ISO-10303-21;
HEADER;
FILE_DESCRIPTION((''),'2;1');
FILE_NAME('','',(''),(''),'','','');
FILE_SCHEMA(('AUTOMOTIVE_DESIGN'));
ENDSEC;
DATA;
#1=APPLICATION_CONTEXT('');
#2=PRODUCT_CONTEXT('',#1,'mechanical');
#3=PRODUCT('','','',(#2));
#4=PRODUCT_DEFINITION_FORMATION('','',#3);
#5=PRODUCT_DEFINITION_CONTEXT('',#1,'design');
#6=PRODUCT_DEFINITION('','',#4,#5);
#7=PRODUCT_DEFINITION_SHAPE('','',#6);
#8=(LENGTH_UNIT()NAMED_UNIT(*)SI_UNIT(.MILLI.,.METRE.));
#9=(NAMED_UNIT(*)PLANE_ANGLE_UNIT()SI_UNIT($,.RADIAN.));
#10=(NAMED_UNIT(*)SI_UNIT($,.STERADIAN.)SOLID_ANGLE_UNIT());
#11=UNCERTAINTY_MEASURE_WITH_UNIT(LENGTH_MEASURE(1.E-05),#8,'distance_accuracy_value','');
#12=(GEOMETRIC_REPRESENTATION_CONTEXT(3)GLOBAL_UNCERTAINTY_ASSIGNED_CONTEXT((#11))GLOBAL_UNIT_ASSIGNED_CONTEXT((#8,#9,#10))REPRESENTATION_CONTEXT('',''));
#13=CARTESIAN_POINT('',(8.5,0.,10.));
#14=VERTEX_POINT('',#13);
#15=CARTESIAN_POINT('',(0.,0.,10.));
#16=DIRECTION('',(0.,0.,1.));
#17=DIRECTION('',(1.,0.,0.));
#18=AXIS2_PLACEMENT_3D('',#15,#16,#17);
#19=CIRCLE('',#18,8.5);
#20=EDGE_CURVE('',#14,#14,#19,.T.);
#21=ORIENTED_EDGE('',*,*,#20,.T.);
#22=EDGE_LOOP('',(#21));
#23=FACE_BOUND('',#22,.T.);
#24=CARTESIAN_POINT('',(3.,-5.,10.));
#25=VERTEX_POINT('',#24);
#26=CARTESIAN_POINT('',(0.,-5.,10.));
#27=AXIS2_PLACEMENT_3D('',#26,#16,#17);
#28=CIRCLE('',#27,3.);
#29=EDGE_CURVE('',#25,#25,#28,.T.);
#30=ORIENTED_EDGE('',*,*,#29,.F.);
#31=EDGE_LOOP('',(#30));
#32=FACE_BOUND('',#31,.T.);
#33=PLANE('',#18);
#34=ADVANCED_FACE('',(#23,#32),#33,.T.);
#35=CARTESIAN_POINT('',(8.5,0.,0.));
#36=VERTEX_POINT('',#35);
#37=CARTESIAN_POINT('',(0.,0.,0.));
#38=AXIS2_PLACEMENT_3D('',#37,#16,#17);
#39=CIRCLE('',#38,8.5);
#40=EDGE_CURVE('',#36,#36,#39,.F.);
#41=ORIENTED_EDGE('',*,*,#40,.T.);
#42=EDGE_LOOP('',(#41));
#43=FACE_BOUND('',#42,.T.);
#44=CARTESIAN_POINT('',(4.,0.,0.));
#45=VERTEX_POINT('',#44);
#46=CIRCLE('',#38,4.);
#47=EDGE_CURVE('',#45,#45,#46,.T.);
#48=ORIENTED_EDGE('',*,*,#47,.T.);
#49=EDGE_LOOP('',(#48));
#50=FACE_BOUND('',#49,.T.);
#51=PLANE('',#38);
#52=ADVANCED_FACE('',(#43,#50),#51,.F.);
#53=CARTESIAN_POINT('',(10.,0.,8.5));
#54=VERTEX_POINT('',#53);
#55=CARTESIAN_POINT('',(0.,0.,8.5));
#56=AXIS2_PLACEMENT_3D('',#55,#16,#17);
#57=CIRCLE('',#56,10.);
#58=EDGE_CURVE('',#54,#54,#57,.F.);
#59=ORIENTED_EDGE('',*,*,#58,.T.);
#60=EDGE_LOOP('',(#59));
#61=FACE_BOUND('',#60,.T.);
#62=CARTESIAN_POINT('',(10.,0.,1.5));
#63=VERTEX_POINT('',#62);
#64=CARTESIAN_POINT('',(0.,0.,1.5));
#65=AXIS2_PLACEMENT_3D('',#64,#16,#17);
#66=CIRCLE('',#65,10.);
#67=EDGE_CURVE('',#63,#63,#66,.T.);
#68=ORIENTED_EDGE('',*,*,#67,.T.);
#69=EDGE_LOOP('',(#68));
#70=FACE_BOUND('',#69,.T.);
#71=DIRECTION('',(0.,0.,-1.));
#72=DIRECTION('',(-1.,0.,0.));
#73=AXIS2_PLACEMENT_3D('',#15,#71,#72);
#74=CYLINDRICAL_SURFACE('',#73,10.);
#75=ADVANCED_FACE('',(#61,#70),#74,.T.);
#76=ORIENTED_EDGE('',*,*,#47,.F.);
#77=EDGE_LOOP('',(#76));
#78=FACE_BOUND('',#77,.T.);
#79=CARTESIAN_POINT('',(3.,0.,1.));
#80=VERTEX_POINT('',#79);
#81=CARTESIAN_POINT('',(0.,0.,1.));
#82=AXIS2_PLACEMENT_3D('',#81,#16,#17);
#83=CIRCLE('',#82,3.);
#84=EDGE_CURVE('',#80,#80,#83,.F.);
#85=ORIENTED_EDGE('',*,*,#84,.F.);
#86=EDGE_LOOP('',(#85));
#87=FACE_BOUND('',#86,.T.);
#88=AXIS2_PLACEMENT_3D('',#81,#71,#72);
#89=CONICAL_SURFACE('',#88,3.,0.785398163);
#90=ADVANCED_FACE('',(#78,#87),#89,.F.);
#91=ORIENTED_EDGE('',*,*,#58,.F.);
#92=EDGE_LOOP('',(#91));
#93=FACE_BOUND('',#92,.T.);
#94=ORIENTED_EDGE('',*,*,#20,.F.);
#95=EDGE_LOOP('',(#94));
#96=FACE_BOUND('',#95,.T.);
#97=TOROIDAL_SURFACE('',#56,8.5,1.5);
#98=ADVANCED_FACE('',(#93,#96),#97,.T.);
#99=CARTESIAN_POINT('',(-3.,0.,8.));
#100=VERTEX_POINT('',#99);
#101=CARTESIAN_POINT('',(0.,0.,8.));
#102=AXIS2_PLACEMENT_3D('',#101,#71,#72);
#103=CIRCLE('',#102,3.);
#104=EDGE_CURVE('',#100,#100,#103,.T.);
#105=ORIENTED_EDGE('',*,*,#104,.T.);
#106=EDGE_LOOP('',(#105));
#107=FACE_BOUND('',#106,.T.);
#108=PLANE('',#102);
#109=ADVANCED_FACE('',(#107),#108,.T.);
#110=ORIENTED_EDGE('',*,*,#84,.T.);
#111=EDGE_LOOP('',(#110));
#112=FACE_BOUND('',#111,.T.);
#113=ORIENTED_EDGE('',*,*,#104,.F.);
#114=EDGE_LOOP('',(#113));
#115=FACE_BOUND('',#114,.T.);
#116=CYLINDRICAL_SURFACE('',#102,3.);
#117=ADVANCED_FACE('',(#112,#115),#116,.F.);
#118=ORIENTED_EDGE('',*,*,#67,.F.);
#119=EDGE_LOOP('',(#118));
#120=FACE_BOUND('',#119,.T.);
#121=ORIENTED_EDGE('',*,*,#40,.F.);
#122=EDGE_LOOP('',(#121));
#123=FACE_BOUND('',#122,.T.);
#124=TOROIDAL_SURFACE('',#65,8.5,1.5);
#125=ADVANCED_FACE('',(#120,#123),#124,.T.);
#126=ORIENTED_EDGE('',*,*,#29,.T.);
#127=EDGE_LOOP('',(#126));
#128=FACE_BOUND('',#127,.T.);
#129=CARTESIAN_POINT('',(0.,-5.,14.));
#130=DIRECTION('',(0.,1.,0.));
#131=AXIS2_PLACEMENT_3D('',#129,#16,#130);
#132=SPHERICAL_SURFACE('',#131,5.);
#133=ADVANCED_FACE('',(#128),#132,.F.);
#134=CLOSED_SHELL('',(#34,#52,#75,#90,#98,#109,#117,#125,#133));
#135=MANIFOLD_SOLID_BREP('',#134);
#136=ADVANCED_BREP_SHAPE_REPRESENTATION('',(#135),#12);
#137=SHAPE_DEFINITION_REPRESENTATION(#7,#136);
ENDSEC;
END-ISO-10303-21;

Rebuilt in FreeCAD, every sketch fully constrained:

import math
import FreeCAD as App
import Part
import Sketcher

V = App.Vector
Q = App.Units.Quantity


def edges_at(feature, points):
    """Names of the edges that pass closest to the given points."""
    edges = feature.Shape.Edges
    near = lambda p: min(range(len(edges)), key=lambda i: edges[i].distToShape(Part.Vertex(*p))[0])
    return sorted({f"Edge{near(p) + 1}" for p in points})

doc = App.newDocument("Part")
body = doc.addObject("PartDesign::Body", "Body")

sketch1 = body.newObject("Sketcher::SketchObject", "Sketch")
sketch1.AttachmentSupport = (doc.getObject("XY_Plane"), [""])
sketch1.MapMode = "FlatFace"
sketch1.addGeometry(Part.Circle(V(0, 0, 0), V(0, 0, 1), 10), False)
sketch1.addConstraint([
    Sketcher.Constraint("Coincident", 0, 3, -1, 1),
    Sketcher.Constraint("Diameter", 0, Q("20 mm")),
])
pad1 = body.newObject("PartDesign::Pad", "Pad")
pad1.Profile = sketch1
pad1.Length = 10
doc.recompute()

fillet = body.newObject("PartDesign::Fillet", "Fillet")
fillet.Base = (pad1, edges_at(pad1, [(-10, 0, 0), (-10, 0, 10)]))
fillet.Radius = 1.5

sketch2 = body.newObject("Sketcher::SketchObject", "Sketch001")
sketch2.AttachmentSupport = (doc.getObject("XY_Plane"), [""])
sketch2.MapMode = "FlatFace"
sketch2.addGeometry(Part.Circle(V(0, 0, 0), V(0, 0, 1), 3), False)
sketch2.addConstraint([
    Sketcher.Constraint("Coincident", 0, 3, -1, 1),
    Sketcher.Constraint("Diameter", 0, Q("6 mm")),
])
pocket1 = body.newObject("PartDesign::Pocket", "Pocket")
pocket1.Profile = sketch2
pocket1.Length = 8
pocket1.Reversed = True
doc.recompute()

chamfer = body.newObject("PartDesign::Chamfer", "Chamfer")
chamfer.Base = (pocket1, edges_at(pocket1, [(3, 0, 0)]))
chamfer.Size = 1

sketch3 = body.newObject("Sketcher::SketchObject", "Sketch002")
sketch3.AttachmentSupport = (doc.getObject("YZ_Plane"), [""])
sketch3.MapMode = "FlatFace"
sketch3.addGeometry([
    Part.LineSegment(V(-5, 9, 0), V(-5, 19, 0)),
    Part.ArcOfCircle(Part.Circle(V(-5, 14, 0), V(0, 0, 1), 5), math.radians(90), math.radians(270)),
], False)
sketch3.addGeometry(Part.LineSegment(V(-5, 19, 0), V(-5, 9, 0)), True)
sketch3.addConstraint([
    Sketcher.Constraint("Coincident", 0, 1, 1, 2),
    Sketcher.Constraint("Coincident", 1, 1, 0, 2),
    Sketcher.Constraint("Vertical", 0),
    Sketcher.Constraint("Vertical", 2),
    Sketcher.Constraint("Coincident", 2, 1, 1, 1),
    Sketcher.Constraint("Vertical", 1, 3, 0, 1),
    Sketcher.Constraint("Equal", 0, 2),
    Sketcher.Constraint("Radius", 1, Q("5 mm")),
    Sketcher.Constraint("DistanceX", 1, 3, -1, 1, Q("5 mm")),
    Sketcher.Constraint("DistanceY", -1, 1, 1, 3, Q("14 mm")),
])
groove = body.newObject("PartDesign::Groove", "Groove")
groove.Profile = sketch3
groove.ReferenceAxis = (sketch3, ["Axis0"])
groove.Angle = 360

doc.recompute()
